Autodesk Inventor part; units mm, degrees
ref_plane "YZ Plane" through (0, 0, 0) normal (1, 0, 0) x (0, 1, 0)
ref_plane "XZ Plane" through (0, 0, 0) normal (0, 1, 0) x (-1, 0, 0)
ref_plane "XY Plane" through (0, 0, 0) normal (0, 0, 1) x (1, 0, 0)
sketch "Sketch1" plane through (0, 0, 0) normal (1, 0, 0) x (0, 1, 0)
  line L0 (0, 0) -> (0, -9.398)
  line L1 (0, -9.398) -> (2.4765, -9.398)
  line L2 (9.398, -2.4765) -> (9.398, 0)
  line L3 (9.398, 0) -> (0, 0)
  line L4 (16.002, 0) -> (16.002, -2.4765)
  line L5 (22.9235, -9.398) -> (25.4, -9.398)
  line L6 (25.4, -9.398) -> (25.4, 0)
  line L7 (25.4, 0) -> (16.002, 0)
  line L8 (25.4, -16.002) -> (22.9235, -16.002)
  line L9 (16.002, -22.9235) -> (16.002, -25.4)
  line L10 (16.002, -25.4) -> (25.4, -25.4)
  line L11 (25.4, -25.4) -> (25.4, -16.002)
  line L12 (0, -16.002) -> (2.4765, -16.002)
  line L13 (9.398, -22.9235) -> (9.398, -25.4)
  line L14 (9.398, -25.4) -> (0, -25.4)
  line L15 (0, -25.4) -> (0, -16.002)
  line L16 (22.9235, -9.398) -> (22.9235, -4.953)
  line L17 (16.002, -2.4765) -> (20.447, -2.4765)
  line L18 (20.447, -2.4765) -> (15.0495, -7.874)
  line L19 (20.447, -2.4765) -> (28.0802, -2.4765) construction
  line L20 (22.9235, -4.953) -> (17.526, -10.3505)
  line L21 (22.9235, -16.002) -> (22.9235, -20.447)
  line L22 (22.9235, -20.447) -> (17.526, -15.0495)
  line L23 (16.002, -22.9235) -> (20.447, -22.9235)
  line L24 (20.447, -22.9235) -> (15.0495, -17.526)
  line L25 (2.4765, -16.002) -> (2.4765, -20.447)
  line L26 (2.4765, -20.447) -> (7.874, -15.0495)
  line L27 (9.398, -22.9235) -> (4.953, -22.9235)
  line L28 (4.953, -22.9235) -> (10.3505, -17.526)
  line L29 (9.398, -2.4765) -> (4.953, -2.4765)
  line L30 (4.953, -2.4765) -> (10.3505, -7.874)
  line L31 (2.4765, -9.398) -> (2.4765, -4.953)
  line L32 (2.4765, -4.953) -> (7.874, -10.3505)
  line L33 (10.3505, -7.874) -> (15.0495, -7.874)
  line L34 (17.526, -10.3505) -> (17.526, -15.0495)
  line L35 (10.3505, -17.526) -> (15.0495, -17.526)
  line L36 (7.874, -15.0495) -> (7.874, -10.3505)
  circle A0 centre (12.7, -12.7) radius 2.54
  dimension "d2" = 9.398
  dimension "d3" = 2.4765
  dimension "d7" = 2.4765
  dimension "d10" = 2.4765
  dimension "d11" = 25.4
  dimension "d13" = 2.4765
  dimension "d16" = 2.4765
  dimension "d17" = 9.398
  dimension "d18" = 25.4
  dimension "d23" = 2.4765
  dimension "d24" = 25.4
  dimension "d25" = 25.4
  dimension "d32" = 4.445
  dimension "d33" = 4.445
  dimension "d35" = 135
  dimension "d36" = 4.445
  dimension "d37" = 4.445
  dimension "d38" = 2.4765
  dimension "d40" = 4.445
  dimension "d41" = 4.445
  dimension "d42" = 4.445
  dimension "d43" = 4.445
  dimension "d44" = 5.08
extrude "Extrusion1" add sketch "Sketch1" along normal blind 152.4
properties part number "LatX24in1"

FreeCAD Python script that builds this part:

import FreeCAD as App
import Part
import Sketcher
from FreeCAD import Vector
Q = App.Units.Quantity


def add_polygon(sketch, points):
    """Adds a closed chain of lines whose ends are joined by coincident constraints."""
    first, n = sketch.GeometryCount, len(points)
    for a, b in zip(points, points[1:] + points[:1]):
        sketch.addGeometry(Part.LineSegment(App.Vector(*a, 0), App.Vector(*b, 0)), False)
    for i in range(n):
        sketch.addConstraint(Sketcher.Constraint("Coincident", first + i, 2, first + (i + 1) % n, 1))

doc = App.newDocument("Part")
params = doc.addObject("Spreadsheet::Sheet", "Params")
for row, (alias, value) in enumerate([
    ("sketch1_diameter", "0.2 in"),
    ("sketch1_width", "0.37 in"),
    ("sketch1_width2", "0.175 in"),
    ("sketch1_width3", "0.185 in"),
    ("pad1_length", "6 in"),
], start=1):
    params.set(f"A{row}", alias)
    params.set(f"B{row}", "=" + value)
    params.setAlias(f"B{row}", alias)

body = doc.addObject("PartDesign::Body", "Body")

# Sketch on YZ plane
sketch1 = doc.addObject("Sketcher::SketchObject", "Sketch")
body.addObject(sketch1)
sketch1.AttachmentSupport = (doc.YZ_Plane, [""])
sketch1.MapMode = "FlatFace"
add_polygon(sketch1, [(9.4, 0), (0, 0), (0, -9.4), (2.5, -9.4), (2.5, -5), (7.9, -10.4), (7.9, -15), (2.5, -20.4), (2.5, -16), (0, -16), (0, -25.4), (9.4, -25.4), (9.4, -22.9), (5, -22.9), (10.4, -17.5), (15, -17.5), (20.4, -22.9), (16, -22.9), (16, -25.4), (25.4, -25.4), (25.4, -16), (22.9, -16), (22.9, -20.4), (17.5, -15), (17.5, -10.4), (22.9, -5), (22.9, -9.4), (25.4, -9.4), (25.4, 0), (16, 0), (16, -2.5), (20.4, -2.5), (15, -7.9), (10.4, -7.9), (5, -2.5), (9.4, -2.5)])  # lines 0-35
sketch1.addGeometry(Part.Circle(Vector(12.7, -12.7, 0), Vector(0, 0, 1), 2.5), False)  # 36
sketch1.addConstraint(Sketcher.Constraint("Horizontal", 0))
sketch1.addConstraint(Sketcher.Constraint("Vertical", 1))
sketch1.addConstraint(Sketcher.Constraint("Horizontal", 2))
sketch1.addConstraint(Sketcher.Constraint("Vertical", 3))
sketch1.addConstraint(Sketcher.Constraint("Vertical", 5))
sketch1.addConstraint(Sketcher.Constraint("Vertical", 7))
sketch1.addConstraint(Sketcher.Constraint("Horizontal", 8))
sketch1.addConstraint(Sketcher.Constraint("Vertical", 9))
sketch1.addConstraint(Sketcher.Constraint("Horizontal", 10))
sketch1.addConstraint(Sketcher.Constraint("Vertical", 11))
sketch1.addConstraint(Sketcher.Constraint("Horizontal", 12))
sketch1.addConstraint(Sketcher.Constraint("Horizontal", 14))
sketch1.addConstraint(Sketcher.Constraint("Horizontal", 16))
sketch1.addConstraint(Sketcher.Constraint("Vertical", 17))
sketch1.addConstraint(Sketcher.Constraint("Horizontal", 18))
sketch1.addConstraint(Sketcher.Constraint("Vertical", 19))
sketch1.addConstraint(Sketcher.Constraint("Horizontal", 20))
sketch1.addConstraint(Sketcher.Constraint("Vertical", 21))
sketch1.addConstraint(Sketcher.Constraint("Vertical", 23))
sketch1.addConstraint(Sketcher.Constraint("Vertical", 25))
sketch1.addConstraint(Sketcher.Constraint("Horizontal", 26))
sketch1.addConstraint(Sketcher.Constraint("Vertical", 27))
sketch1.addConstraint(Sketcher.Constraint("Horizontal", 28))
sketch1.addConstraint(Sketcher.Constraint("Vertical", 29))
sketch1.addConstraint(Sketcher.Constraint("Horizontal", 30))
sketch1.addConstraint(Sketcher.Constraint("Horizontal", 32))
sketch1.addConstraint(Sketcher.Constraint("Horizontal", 34))
sketch1.addConstraint(Sketcher.Constraint("Vertical", 35))
sketch1.addConstraint(Sketcher.Constraint("Coincident", 0, 2, -1, 1))
sketch1.addConstraint(Sketcher.Constraint("PointOnObject", 8, 2, -2))
sketch1.addConstraint(Sketcher.Constraint("PointOnObject", 27, 2, -1))
sketch1.addConstraint(Sketcher.Constraint("Perpendicular", 4, 6))
sketch1.addConstraint(Sketcher.Constraint("Parallel", 6, 13))
sketch1.addConstraint(Sketcher.Constraint("Perpendicular", 13, 15))
sketch1.addConstraint(Sketcher.Constraint("Parallel", 15, 22))
sketch1.addConstraint(Sketcher.Constraint("Perpendicular", 22, 24))
sketch1.addConstraint(Sketcher.Constraint("Parallel", 24, 31))
sketch1.addConstraint(Sketcher.Constraint("Perpendicular", 31, 33))
sketch1.addConstraint(Sketcher.Constraint("Horizontal", 12, 2, 15, 2))
sketch1.addConstraint(Sketcher.Constraint("Horizontal", 10, 2, 17, 2))
sketch1.addConstraint(Sketcher.Constraint("Horizontal", 8, 2, 19, 2))
sketch1.addConstraint(Sketcher.Constraint("Horizontal", 6, 2, 21, 2))
sketch1.addConstraint(Sketcher.Constraint("Horizontal", 5, 2, 22, 2))
sketch1.addConstraint(Sketcher.Constraint("Horizontal", 4, 2, 23, 2))
sketch1.addConstraint(Sketcher.Constraint("Horizontal", 3, 2, 24, 2))
sketch1.addConstraint(Sketcher.Constraint("Horizontal", 2, 2, 25, 2))
sketch1.addConstraint(Sketcher.Constraint("Horizontal", 30, 2, 33, 2))
sketch1.addConstraint(Sketcher.Constraint("Vertical", 3, 2, 6, 2))
sketch1.addConstraint(Sketcher.Constraint("Vertical", 21, 2, 24, 2))
sketch1.addConstraint(Sketcher.Constraint("Vertical", 19, 2, 26, 2))
sketch1.addConstraint(Sketcher.Constraint("Vertical", 17, 2, 28, 2))
sketch1.addConstraint(Sketcher.Constraint("Vertical", 15, 2, 30, 2))
sketch1.addConstraint(Sketcher.Constraint("Vertical", 14, 2, 31, 2))
sketch1.addConstraint(Sketcher.Constraint("Vertical", 13, 2, 32, 2))
sketch1.addConstraint(Sketcher.Constraint("Vertical", 11, 2, 34, 2))
sketch1.addConstraint(Sketcher.Constraint("Equal", 12, 16))
sketch1.addConstraint(Sketcher.Constraint("Equal", 10, 18))
sketch1.addConstraint(Sketcher.Constraint("Equal", 8, 20))
sketch1.addConstraint(Sketcher.Constraint("Equal", 28, 1))
sketch1.addConstraint(Sketcher.Constraint("Equal", 34, 3))
sketch1.addConstraint(Sketcher.Constraint("Equal", 32, 5))
sketch1.addConstraint(Sketcher.Constraint("Equal", 3, 7))
sketch1.addConstraint(Sketcher.Constraint("Equal", 1, 9))
sketch1.addConstraint(Sketcher.Constraint("Equal", 26, 11))
sketch1.addConstraint(Sketcher.Constraint("Equal", 17, 29))
sketch1.addConstraint(Sketcher.Constraint("Equal", 6, 13))
sketch1.addConstraint(Sketcher.Constraint("Diameter", 36, Q("0.2 in")))
sketch1.addConstraint(Sketcher.Constraint("DistanceY", 9, 2, -1, 1, Q("1 in")))
sketch1.addConstraint(Sketcher.Constraint("DistanceX", 0, 2, 0, 1, Q("0.37 in")))
sketch1.addConstraint(Sketcher.Constraint("DistanceX", 12, 2, 12, 1, Q("0.175 in")))
sketch1.addConstraint(Sketcher.Constraint("DistanceX", 2, 1, 2, 2, Q("0.0975 in")))
sketch1.addConstraint(Sketcher.Constraint("DistanceX", -1, 1, 36, 3, Q("0.5 in")))
sketch1.addConstraint(Sketcher.Constraint("DistanceY", 36, 3, -1, 1, Q("0.5 in")))
sketch1.addConstraint(Sketcher.Constraint("DistanceX", 14, 1, 14, 2, Q("0.185 in")))
sketch1.setExpression("Constraints[102]", "Params.sketch1_diameter")
sketch1.setExpression("Constraints[104]", "Params.sketch1_width")
sketch1.setExpression("Constraints[105]", "Params.sketch1_width2")
sketch1.setExpression("Constraints[109]", "Params.sketch1_width3")
pad1 = doc.addObject("PartDesign::Pad", "Pad")
body.addObject(pad1)
pad1.Profile = sketch1
pad1.setExpression("Length", "Params.pad1_length")

doc.recompute()
